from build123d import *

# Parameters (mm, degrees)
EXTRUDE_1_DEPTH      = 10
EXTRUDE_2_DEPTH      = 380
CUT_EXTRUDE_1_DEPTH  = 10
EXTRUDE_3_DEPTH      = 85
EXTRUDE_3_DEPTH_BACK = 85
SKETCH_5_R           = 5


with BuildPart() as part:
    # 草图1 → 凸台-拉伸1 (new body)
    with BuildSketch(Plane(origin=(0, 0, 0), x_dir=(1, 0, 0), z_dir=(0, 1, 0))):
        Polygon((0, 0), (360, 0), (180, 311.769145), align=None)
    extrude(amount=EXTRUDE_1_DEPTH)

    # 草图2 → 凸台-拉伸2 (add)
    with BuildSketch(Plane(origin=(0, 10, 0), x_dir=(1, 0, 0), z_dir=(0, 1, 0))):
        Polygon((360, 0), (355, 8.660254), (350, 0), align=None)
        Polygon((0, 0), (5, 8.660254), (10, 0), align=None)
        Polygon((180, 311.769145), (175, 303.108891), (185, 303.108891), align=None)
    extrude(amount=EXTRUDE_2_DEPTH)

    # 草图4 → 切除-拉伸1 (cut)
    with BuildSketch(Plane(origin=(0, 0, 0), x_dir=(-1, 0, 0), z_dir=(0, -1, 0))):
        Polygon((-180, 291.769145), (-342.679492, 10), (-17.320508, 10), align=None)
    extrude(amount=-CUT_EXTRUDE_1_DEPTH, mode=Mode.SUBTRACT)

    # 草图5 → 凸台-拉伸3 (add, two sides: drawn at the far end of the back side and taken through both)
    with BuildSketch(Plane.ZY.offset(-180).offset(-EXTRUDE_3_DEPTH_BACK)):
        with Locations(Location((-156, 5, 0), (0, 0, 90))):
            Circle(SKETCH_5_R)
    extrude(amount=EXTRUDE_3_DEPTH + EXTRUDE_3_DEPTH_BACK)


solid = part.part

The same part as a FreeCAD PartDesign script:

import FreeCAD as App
import Part
import Sketcher
Q = App.Units.Quantity


def add_polygon(sketch, points):
    """Adds a closed chain of lines whose ends are joined by coincident constraints."""
    first, n = sketch.GeometryCount, len(points)
    for a, b in zip(points, points[1:] + points[:1]):
        sketch.addGeometry(Part.LineSegment(App.Vector(*a, 0), App.Vector(*b, 0)), False)
    for i in range(n):
        sketch.addConstraint(Sketcher.Constraint("Coincident", first + i, 2, first + (i + 1) % n, 1))

doc = App.newDocument("Part")
body = doc.addObject("PartDesign::Body", "Body")

sketch1 = body.newObject("Sketcher::SketchObject", "Sketch")
sketch1.AttachmentSupport = (doc.getObject("XZ_Plane"), [""])
sketch1.MapMode = "FlatFace"
add_polygon(sketch1, [(0, 0), (360, 0), (180, -312)])
sketch1.addConstraint([
    Sketcher.Constraint("Horizontal", 0),
    Sketcher.Constraint("Coincident", 2, 2, -1, 1),
    Sketcher.Constraint("Equal", 1, 2),
    Sketcher.Constraint("DistanceX", 0, 1, 0, 2, 360.0),
    Sketcher.Constraint("Angle", 1, Q("-120 deg")),
])
pad1 = body.newObject("PartDesign::Pad", "Pad")
pad1.Profile = sketch1
pad1.Length = 10
pad1.Reversed = True

sketch2 = body.newObject("Sketcher::SketchObject", "Sketch001")
sketch2.AttachmentSupport = (doc.getObject("XZ_Plane"), [""])
sketch2.MapMode = "FlatFace"
sketch2.AttachmentOffset = App.Placement(App.Vector(0, 0, -10), App.Rotation())
add_polygon(sketch2, [(360, 0), (355, -9), (350, 0)])
add_polygon(sketch2, [(5, -9), (0, 0), (10, 0)])
add_polygon(sketch2, [(180, -312), (175, -303), (185, -303)])
sketch2.addConstraint([
    Sketcher.Constraint("Horizontal", 2),
    Sketcher.Constraint("Horizontal", 4),
    Sketcher.Constraint("Horizontal", 7),
    Sketcher.Constraint("Coincident", 3, 2, -1, 1),
    Sketcher.Constraint("PointOnObject", 1, 2, -1),
    Sketcher.Constraint("Parallel", 1, 3),
    Sketcher.Constraint("Parallel", 0, 5),
    Sketcher.Constraint("Parallel", 3, 6),
    Sketcher.Constraint("Parallel", 5, 8),
    Sketcher.Constraint("Horizontal", 0, 2, 5, 2),
    Sketcher.Constraint("Equal", 4, 7),
    Sketcher.Constraint("Equal", 0, 1),
    Sketcher.Constraint("DistanceX", 2, 1, 2, 2, 10.0),
    Sketcher.Constraint("Angle", 0, Q("-120 deg")),
    Sketcher.Constraint("DistanceX", -1, 1, 0, 2, 355.0),
    Sketcher.Constraint("DistanceX", -1, 1, 6, 2, 175.0),
    Sketcher.Constraint("DistanceY", 6, 2, -1, 1, 303.108891),
])
pad2 = body.newObject("PartDesign::Pad", "Pad001")
pad2.Profile = sketch2
pad2.Length = 380
pad2.Reversed = True

sketch3 = body.newObject("Sketcher::SketchObject", "Sketch002")
sketch3.AttachmentSupport = (doc.getObject("XZ_Plane"), [""])
sketch3.MapMode = "FlatFace"
add_polygon(sketch3, [(180, -292), (343, -10), (17, -10)])
sketch3.addConstraint([
    Sketcher.Constraint("Horizontal", 1),
    Sketcher.Constraint("Equal", 0, 2),
    Sketcher.Constraint("Angle", 0, Q("60 deg")),
    Sketcher.Constraint("DistanceY", 0, 2, -1, 1, 10.0),
    Sketcher.Constraint("DistanceX", -1, 1, 2, 2, 180.0),
    Sketcher.Constraint("DistanceX", 1, 2, 1, 1, 325.358984),
])
pocket1 = body.newObject("PartDesign::Pocket", "Pocket")
pocket1.Profile = sketch3
pocket1.Length = 10

sketch4 = body.newObject("Sketcher::SketchObject", "Sketch003")
sketch4.AttachmentSupport = (doc.getObject("YZ_Plane"), [""])
sketch4.MapMode = "FlatFace"
sketch4.AttachmentOffset = App.Placement(App.Vector(0, 0, 180), App.Rotation())
sketch4.addGeometry(Part.Circle(App.Vector(5, -156, 0), App.Vector(0, 0, 1), 5), False)
sketch4.addConstraint([
    Sketcher.Constraint("Diameter", 0, 10.0),
    Sketcher.Constraint("DistanceX", -1, 1, 0, 3, 5.0),
    Sketcher.Constraint("DistanceY", 0, 3, -1, 1, 156.0),
])
pad3 = body.newObject("PartDesign::Pad", "Pad002")
pad3.Profile = sketch4
pad3.Type = "TwoLengths"
pad3.Length = 85
pad3.Length2 = 85
pad3.Reversed = True

doc.recompute()
